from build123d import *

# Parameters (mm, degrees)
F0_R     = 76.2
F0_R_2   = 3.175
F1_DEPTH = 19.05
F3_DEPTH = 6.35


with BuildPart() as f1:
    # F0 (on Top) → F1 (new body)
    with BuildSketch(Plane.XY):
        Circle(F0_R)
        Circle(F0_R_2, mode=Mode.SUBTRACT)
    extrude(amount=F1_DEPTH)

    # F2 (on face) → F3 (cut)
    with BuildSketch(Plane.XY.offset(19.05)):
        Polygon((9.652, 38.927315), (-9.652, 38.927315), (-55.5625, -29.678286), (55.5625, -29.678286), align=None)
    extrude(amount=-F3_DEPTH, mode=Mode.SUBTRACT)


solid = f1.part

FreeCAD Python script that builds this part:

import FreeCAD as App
import Part
import Sketcher
from FreeCAD import Vector
Q = App.Units.Quantity

doc = App.newDocument("Part")
body = doc.addObject("PartDesign::Body", "Body")

sketch1 = body.newObject("Sketcher::SketchObject", "Sketch")
sketch1.AttachmentSupport = (doc.getObject("XY_Plane"), [""])
sketch1.MapMode = "FlatFace"
sketch1.addGeometry([
    Part.Circle(Vector(0, 0, 0), Vector(0, 0, 1), 76.2),
    Part.Circle(Vector(0, 0, 0), Vector(0, 0, 1), 3.2),
], False)
sketch1.addConstraint([
    Sketcher.Constraint("Coincident", 0, 3, -1, 1),
    Sketcher.Constraint("Coincident", 1, 3, -1, 1),
    Sketcher.Constraint("Diameter", 0, Q("6 in")),
    Sketcher.Constraint("Diameter", 1, Q("0.25 in")),
])
pad1 = body.newObject("PartDesign::Pad", "Pad")
pad1.Profile = sketch1
pad1.Length = Q("0.75 in")

sketch2 = body.newObject("Sketcher::SketchObject", "Sketch001")
sketch2.AttachmentSupport = (doc.getObject("XY_Plane"), [""])
sketch2.MapMode = "FlatFace"
sketch2.AttachmentOffset = App.Placement(Vector(0, 0, 0.75 * 25.4), App.Rotation())
sketch2.addGeometry([
    Part.LineSegment(Vector(10, 39, 0), Vector(-10, 39, 0)),
    Part.LineSegment(Vector(-10, 39, 0), Vector(-56, -30, 0)),
    Part.LineSegment(Vector(-56, -30, 0), Vector(56, -30, 0)),
    Part.LineSegment(Vector(56, -30, 0), Vector(10, 39, 0)),
], False)
sketch2.addConstraint([
    Sketcher.Constraint("Coincident", 0, 2, 1, 1),
    Sketcher.Constraint("Coincident", 1, 2, 2, 1),
    Sketcher.Constraint("Coincident", 2, 2, 3, 1),
    Sketcher.Constraint("Coincident", 3, 2, 0, 1),
    Sketcher.Constraint("Horizontal", 0),
    Sketcher.Constraint("Horizontal", 2),
    Sketcher.Constraint("Equal", 1, 3),
    Sketcher.Constraint("DistanceX", 0, 2, 0, 1, Q("0.76 in")),
    Sketcher.Constraint("Distance", 1, Q("3.25 in")),
    Sketcher.Constraint("DistanceX", 2, 1, 2, 2, Q("4.375 in")),
    Sketcher.Constraint("DistanceX", 0, 2, -1, 1, Q("0.38 in")),
    Sketcher.Constraint("DistanceY", -1, 1, 0, 2, Q("38.927315 mm")),
])
pocket1 = body.newObject("PartDesign::Pocket", "Pocket")
pocket1.Profile = sketch2
pocket1.Length = Q("0.25 in")

doc.recompute()
